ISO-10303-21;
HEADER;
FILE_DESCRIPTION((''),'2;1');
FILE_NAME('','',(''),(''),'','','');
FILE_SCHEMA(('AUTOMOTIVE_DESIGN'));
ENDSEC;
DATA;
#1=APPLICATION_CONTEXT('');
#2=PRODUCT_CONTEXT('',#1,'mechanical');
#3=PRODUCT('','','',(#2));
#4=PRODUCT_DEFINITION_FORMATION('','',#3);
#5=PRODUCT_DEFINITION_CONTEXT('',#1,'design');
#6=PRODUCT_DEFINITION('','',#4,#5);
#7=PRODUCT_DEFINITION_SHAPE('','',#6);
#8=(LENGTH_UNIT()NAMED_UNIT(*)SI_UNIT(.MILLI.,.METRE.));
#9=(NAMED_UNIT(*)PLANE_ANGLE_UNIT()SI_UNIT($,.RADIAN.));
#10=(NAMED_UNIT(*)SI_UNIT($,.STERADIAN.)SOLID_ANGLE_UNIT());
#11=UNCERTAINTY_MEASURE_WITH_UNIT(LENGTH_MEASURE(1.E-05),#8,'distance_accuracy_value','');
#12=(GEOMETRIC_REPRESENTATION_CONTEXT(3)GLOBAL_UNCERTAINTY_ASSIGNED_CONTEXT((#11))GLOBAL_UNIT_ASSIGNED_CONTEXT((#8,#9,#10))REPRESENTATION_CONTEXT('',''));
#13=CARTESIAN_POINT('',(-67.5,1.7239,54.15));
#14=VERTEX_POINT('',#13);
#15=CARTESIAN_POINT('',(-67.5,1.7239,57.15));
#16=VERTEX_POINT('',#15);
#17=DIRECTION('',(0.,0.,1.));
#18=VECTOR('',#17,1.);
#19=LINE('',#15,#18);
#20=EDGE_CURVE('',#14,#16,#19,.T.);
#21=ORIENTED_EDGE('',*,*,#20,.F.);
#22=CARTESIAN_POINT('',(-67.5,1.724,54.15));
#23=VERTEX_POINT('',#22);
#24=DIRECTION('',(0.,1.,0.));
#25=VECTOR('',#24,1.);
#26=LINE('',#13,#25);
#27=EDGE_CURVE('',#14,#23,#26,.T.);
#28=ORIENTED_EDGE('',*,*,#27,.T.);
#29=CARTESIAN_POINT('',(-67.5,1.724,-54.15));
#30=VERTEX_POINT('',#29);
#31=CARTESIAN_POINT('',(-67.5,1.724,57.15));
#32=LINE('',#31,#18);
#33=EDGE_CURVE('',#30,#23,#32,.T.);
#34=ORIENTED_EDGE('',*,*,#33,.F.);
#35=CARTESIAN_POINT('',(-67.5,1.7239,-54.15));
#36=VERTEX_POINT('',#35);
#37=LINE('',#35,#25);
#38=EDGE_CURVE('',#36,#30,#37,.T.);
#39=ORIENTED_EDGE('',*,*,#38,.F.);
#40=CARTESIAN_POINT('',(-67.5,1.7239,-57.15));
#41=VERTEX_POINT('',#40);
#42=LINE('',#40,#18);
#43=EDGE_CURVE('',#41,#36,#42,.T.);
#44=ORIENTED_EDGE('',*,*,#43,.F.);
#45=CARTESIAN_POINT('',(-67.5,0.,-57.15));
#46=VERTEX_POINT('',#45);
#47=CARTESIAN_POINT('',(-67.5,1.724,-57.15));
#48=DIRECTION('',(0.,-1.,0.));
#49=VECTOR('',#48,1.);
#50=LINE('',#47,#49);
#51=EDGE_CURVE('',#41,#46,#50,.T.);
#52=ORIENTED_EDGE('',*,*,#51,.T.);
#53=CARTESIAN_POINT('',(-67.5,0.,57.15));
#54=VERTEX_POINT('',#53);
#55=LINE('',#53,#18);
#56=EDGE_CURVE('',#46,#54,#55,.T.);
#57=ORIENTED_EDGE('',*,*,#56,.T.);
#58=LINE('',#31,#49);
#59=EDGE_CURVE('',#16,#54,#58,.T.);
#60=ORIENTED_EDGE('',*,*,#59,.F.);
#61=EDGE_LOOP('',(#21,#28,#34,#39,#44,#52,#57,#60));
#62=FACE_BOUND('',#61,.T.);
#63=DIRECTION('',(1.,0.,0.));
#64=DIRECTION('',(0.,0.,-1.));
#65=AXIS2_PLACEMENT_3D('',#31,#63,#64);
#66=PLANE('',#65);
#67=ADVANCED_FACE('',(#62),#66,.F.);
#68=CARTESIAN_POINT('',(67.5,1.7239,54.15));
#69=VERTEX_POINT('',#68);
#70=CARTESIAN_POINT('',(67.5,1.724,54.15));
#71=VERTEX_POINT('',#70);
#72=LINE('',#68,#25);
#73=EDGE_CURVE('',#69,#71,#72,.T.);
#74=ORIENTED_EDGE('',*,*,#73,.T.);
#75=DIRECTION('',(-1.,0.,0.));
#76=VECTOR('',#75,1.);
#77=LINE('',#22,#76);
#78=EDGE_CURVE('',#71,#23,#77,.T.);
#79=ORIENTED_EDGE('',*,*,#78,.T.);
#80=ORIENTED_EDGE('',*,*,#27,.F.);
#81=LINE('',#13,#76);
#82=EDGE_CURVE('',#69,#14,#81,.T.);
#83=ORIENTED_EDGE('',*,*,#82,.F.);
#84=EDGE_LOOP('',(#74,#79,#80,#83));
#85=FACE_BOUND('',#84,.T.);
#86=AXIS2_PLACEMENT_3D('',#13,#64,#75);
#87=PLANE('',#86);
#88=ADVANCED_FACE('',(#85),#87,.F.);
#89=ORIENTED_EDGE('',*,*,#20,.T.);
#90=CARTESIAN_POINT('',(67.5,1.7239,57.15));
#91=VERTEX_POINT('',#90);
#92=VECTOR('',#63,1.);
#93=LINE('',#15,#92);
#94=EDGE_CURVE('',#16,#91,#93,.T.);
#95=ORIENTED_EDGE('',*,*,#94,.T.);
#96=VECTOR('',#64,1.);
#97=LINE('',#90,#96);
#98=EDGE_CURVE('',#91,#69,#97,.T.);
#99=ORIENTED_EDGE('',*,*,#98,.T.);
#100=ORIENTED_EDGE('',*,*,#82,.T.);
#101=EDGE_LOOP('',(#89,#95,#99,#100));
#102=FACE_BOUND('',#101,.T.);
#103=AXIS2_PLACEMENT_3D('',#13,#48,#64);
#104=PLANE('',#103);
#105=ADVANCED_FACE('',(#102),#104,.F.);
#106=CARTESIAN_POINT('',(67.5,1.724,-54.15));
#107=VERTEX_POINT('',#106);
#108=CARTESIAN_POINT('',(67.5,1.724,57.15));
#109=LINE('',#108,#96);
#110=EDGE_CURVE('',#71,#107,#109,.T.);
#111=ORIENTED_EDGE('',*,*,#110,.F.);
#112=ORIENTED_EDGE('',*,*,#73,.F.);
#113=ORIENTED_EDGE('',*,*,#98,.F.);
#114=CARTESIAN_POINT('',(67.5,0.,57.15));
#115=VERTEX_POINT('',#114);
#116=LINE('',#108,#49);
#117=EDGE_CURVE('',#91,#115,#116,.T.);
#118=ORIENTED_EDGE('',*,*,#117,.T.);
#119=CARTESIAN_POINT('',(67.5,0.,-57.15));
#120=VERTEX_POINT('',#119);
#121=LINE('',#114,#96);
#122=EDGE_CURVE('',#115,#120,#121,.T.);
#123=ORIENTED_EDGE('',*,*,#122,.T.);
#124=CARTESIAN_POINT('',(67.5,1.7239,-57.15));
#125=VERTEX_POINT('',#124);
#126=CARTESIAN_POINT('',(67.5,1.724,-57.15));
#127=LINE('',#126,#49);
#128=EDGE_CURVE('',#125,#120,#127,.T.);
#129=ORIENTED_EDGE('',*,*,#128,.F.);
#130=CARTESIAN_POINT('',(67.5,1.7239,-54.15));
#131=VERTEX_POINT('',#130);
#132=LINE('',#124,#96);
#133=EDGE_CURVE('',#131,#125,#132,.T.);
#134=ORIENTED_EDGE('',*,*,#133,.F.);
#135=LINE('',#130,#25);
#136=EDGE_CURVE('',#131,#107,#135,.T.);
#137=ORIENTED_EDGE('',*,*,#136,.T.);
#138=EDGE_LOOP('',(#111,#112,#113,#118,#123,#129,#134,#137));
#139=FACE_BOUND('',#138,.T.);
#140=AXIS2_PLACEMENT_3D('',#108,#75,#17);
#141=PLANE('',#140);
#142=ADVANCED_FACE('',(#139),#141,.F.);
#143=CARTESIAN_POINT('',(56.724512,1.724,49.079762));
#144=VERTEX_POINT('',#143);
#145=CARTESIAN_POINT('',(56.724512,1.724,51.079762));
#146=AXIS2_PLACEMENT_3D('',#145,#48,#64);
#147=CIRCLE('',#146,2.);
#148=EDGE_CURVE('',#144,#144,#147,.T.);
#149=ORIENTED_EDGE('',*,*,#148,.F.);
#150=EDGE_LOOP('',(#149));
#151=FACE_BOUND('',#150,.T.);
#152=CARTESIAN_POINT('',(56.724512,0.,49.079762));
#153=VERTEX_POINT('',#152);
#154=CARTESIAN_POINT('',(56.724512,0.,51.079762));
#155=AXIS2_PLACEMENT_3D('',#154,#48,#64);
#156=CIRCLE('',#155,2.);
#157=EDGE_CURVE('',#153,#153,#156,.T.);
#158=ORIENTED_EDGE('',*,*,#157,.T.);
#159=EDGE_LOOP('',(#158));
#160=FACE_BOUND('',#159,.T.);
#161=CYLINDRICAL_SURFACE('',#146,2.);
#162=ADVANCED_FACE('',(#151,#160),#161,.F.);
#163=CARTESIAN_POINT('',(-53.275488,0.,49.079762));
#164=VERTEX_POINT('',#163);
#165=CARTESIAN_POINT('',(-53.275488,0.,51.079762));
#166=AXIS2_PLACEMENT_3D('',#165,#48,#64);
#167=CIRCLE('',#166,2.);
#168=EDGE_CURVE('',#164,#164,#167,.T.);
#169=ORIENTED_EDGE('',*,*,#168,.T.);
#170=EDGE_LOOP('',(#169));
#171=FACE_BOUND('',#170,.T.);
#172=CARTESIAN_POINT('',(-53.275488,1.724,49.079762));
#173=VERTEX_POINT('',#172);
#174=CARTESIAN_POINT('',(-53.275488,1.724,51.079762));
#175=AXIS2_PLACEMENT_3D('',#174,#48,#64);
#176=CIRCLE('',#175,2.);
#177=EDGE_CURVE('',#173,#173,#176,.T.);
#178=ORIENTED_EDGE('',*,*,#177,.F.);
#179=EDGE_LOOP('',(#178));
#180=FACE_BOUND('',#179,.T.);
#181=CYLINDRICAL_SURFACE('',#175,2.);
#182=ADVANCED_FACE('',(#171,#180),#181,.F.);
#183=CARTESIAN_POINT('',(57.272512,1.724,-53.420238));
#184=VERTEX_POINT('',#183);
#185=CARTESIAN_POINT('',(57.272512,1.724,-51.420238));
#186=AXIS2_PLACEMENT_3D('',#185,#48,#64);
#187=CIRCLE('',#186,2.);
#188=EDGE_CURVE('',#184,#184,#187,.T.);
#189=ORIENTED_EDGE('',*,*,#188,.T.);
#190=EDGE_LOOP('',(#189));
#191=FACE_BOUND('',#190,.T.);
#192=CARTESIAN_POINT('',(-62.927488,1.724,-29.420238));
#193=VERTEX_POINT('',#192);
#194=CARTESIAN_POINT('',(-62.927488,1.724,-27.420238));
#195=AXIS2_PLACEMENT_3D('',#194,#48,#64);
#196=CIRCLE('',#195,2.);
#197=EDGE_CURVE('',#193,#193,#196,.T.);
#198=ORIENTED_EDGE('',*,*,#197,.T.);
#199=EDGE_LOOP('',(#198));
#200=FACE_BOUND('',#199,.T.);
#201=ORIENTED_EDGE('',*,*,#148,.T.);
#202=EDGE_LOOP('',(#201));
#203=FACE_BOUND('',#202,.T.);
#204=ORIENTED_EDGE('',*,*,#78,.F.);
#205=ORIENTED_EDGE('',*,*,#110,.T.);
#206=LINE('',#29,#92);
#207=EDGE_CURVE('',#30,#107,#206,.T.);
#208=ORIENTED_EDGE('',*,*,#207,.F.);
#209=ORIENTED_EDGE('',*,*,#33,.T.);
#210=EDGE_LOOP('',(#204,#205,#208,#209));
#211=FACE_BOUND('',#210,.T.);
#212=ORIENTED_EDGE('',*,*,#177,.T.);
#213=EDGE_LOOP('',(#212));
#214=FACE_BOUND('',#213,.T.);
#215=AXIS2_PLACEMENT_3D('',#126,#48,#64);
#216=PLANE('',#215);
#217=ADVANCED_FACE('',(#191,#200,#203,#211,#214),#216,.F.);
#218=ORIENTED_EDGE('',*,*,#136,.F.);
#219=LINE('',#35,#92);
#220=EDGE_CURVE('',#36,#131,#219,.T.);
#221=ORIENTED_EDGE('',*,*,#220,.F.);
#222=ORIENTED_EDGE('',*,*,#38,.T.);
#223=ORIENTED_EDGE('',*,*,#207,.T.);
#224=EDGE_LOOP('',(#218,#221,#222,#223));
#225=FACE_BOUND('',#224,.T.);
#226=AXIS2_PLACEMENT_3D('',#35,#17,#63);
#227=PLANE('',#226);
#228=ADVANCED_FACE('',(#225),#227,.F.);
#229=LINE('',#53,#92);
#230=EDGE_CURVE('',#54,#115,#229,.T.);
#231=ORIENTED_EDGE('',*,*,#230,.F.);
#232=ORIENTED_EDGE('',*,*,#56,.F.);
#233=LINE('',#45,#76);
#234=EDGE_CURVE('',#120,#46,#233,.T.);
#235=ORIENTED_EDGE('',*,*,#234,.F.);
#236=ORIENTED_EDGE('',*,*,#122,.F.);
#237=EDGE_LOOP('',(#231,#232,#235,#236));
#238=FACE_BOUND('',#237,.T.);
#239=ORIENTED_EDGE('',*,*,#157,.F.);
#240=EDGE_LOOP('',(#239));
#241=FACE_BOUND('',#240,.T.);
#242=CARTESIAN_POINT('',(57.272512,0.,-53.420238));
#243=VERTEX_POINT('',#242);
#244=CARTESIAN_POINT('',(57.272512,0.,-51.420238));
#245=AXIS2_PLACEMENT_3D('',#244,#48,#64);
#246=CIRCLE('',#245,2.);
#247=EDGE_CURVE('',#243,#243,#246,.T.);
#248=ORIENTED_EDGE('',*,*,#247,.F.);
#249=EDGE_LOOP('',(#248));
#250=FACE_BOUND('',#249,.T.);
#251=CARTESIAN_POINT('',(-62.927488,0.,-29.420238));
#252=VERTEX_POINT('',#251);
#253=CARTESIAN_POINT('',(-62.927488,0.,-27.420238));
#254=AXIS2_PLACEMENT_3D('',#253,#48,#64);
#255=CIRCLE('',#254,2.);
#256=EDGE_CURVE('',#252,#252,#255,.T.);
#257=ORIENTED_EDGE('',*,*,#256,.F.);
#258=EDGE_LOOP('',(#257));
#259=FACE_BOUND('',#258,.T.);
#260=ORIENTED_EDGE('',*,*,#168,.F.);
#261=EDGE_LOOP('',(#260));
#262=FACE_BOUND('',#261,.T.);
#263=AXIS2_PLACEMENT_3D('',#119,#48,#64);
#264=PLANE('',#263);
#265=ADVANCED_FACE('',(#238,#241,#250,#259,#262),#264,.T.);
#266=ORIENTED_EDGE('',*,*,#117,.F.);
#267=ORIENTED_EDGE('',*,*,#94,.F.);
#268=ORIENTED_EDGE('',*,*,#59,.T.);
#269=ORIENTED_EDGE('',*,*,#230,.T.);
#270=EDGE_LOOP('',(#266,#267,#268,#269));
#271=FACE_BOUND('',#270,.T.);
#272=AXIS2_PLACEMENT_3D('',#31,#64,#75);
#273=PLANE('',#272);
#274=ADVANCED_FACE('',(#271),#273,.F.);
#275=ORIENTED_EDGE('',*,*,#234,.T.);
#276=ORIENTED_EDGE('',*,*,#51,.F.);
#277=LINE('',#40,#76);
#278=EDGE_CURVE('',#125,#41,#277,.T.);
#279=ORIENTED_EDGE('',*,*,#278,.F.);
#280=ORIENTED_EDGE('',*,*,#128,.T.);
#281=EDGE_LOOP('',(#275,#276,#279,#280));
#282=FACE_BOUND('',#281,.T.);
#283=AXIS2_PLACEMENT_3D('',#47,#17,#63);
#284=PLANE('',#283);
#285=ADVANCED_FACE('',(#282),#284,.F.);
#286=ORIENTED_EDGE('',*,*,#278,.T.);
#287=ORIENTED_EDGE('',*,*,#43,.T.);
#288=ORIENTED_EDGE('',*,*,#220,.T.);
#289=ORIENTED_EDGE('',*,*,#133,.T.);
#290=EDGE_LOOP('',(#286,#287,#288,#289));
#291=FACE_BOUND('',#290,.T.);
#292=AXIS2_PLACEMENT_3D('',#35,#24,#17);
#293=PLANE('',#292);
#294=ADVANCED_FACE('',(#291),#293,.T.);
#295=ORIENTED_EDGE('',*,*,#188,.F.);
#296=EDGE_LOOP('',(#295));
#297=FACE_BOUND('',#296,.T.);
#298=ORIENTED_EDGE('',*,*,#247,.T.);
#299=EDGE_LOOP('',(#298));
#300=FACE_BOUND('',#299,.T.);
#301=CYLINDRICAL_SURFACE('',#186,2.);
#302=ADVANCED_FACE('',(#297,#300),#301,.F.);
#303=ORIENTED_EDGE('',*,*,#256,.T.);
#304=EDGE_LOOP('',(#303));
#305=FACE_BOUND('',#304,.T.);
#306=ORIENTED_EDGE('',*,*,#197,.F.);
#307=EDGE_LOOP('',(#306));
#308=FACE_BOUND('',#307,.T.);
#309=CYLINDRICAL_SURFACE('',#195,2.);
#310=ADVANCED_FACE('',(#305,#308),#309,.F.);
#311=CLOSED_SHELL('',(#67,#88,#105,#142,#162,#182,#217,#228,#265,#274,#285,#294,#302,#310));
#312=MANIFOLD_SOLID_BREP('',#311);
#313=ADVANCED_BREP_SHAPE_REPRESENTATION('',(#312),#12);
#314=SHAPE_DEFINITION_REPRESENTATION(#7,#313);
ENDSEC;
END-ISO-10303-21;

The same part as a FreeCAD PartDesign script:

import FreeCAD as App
import Part
import Sketcher

V = App.Vector


def add_polygon(sketch, points):
    """Adds a closed chain of lines whose ends are joined by coincident constraints."""
    first, n = sketch.GeometryCount, len(points)
    for a, b in zip(points, points[1:] + points[:1]):
        sketch.addGeometry(Part.LineSegment(App.Vector(*a, 0), App.Vector(*b, 0)), False)
    for i in range(n):
        sketch.addConstraint(Sketcher.Constraint("Coincident", first + i, 2, first + (i + 1) % n, 1))

doc = App.newDocument("Part")
body = doc.addObject("PartDesign::Body", "Body")

# Sketch on XZ plane
sketch1 = body.newObject("Sketcher::SketchObject", "Sketch")
sketch1.AttachmentSupport = (doc.getObject("XZ_Plane"), [""])
sketch1.MapMode = "FlatFace"
add_polygon(sketch1, [(-68, -57), (-68, 57), (68, 57), (68, -57)])  # lines 0-3
sketch1.addConstraint([
    Sketcher.Constraint("Vertical", 0),
    Sketcher.Constraint("Horizontal", 1),
    Sketcher.Constraint("Vertical", 2),
    Sketcher.Constraint("Horizontal", 3),
    Sketcher.Constraint("Symmetric", 0, 2, 2, 2, -1, 1),
    Sketcher.Constraint("DistanceX", 1, 1, 1, 2, 135.0),
    Sketcher.Constraint("DistanceY", 0, 1, 0, 2, 114.3),
])
pad1 = body.newObject("PartDesign::Pad", "Pad")
pad1.Profile = sketch1
pad1.Length = 1.724
pad1.Reversed = True

# Sketch on XZ plane
sketch2 = body.newObject("Sketcher::SketchObject", "Sketch001")
sketch2.AttachmentSupport = (doc.getObject("XZ_Plane"), [""])
sketch2.MapMode = "FlatFace"
sketch2.AttachmentOffset = App.Placement(V(0, 0, -1.724), App.Rotation())
add_polygon(sketch2, [(-67.5, -57.1), (-67.5, -54.1), (67.5, -54.1), (67.5, -57.1)])  # lines 0-3
add_polygon(sketch2, [(-67.5, 54.1), (-67.5, 57.1), (67.5, 57.1), (67.5, 54.1)])  # lines 4-7
sketch2.addConstraint([
    Sketcher.Constraint("Vertical", 0),
    Sketcher.Constraint("Horizontal", 1),
    Sketcher.Constraint("Vertical", 2),
    Sketcher.Constraint("Horizontal", 3),
    Sketcher.Constraint("Vertical", 4),
    Sketcher.Constraint("Horizontal", 5),
    Sketcher.Constraint("Vertical", 6),
    Sketcher.Constraint("Horizontal", 7),
    Sketcher.Constraint("Symmetric", 2, 2, 4, 2, -1, 1),
    Sketcher.Constraint("Symmetric", 0, 2, 6, 2, -1, 1),
    Sketcher.Constraint("Vertical", 3, 2, 4, 2),
    Sketcher.Constraint("DistanceX", 1, 1, 1, 2, 135.0),
    Sketcher.Constraint("DistanceY", 0, 1, 0, 2, 3.0),
    Sketcher.Constraint("DistanceY", 0, 2, 4, 2, 111.3),
])
pocket1 = body.newObject("PartDesign::Pocket", "Pocket")
pocket1.Profile = sketch2
pocket1.Length = 0.0001
pocket1.Reversed = True

# Sketch on XZ plane
sketch3 = body.newObject("Sketcher::SketchObject", "Sketch002")
sketch3.AttachmentSupport = (doc.getObject("XZ_Plane"), [""])
sketch3.MapMode = "FlatFace"
sketch3.addGeometry([
    Part.Circle(V(-53.3, 51.1, 0), V(0, 0, 1), 2),
    Part.Circle(V(56.7, 51.1, 0), V(0, 0, 1), 2),
    Part.Circle(V(57.3, -51.4, 0), V(0, 0, 1), 2),
    Part.Circle(V(-62.9, -27.4, 0), V(0, 0, 1), 2),
], False)
sketch3.addConstraint([
    Sketcher.Constraint("Equal", 0, 1),
    Sketcher.Constraint("Equal", 1, 2),
    Sketcher.Constraint("Equal", 2, 3),
    Sketcher.Constraint("Horizontal", 0, 3, 1, 3),
    Sketcher.Constraint("Diameter", 0, 4.0),
    Sketcher.Constraint("DistanceX", 0, 3, 1, 3, 110.0),
    Sketcher.Constraint("DistanceY", 2, 3, 3, 3, 24.0),
    Sketcher.Constraint("DistanceY", 2, 3, 1, 3, 102.5),
    Sketcher.Constraint("DistanceX", 3, 3, 2, 3, 120.2),
    Sketcher.Constraint("DistanceX", 1, 3, 2, 3, 0.548),
    Sketcher.Constraint("DistanceY", -1, 1, 0, 3, 51.079762),
    Sketcher.Constraint("DistanceX", 0, 3, -1, 1, 53.275488),
])
pocket2 = body.newObject("PartDesign::Pocket", "Pocket001")
pocket2.Profile = sketch3
pocket2.Type = "ThroughAll"

doc.recompute()
